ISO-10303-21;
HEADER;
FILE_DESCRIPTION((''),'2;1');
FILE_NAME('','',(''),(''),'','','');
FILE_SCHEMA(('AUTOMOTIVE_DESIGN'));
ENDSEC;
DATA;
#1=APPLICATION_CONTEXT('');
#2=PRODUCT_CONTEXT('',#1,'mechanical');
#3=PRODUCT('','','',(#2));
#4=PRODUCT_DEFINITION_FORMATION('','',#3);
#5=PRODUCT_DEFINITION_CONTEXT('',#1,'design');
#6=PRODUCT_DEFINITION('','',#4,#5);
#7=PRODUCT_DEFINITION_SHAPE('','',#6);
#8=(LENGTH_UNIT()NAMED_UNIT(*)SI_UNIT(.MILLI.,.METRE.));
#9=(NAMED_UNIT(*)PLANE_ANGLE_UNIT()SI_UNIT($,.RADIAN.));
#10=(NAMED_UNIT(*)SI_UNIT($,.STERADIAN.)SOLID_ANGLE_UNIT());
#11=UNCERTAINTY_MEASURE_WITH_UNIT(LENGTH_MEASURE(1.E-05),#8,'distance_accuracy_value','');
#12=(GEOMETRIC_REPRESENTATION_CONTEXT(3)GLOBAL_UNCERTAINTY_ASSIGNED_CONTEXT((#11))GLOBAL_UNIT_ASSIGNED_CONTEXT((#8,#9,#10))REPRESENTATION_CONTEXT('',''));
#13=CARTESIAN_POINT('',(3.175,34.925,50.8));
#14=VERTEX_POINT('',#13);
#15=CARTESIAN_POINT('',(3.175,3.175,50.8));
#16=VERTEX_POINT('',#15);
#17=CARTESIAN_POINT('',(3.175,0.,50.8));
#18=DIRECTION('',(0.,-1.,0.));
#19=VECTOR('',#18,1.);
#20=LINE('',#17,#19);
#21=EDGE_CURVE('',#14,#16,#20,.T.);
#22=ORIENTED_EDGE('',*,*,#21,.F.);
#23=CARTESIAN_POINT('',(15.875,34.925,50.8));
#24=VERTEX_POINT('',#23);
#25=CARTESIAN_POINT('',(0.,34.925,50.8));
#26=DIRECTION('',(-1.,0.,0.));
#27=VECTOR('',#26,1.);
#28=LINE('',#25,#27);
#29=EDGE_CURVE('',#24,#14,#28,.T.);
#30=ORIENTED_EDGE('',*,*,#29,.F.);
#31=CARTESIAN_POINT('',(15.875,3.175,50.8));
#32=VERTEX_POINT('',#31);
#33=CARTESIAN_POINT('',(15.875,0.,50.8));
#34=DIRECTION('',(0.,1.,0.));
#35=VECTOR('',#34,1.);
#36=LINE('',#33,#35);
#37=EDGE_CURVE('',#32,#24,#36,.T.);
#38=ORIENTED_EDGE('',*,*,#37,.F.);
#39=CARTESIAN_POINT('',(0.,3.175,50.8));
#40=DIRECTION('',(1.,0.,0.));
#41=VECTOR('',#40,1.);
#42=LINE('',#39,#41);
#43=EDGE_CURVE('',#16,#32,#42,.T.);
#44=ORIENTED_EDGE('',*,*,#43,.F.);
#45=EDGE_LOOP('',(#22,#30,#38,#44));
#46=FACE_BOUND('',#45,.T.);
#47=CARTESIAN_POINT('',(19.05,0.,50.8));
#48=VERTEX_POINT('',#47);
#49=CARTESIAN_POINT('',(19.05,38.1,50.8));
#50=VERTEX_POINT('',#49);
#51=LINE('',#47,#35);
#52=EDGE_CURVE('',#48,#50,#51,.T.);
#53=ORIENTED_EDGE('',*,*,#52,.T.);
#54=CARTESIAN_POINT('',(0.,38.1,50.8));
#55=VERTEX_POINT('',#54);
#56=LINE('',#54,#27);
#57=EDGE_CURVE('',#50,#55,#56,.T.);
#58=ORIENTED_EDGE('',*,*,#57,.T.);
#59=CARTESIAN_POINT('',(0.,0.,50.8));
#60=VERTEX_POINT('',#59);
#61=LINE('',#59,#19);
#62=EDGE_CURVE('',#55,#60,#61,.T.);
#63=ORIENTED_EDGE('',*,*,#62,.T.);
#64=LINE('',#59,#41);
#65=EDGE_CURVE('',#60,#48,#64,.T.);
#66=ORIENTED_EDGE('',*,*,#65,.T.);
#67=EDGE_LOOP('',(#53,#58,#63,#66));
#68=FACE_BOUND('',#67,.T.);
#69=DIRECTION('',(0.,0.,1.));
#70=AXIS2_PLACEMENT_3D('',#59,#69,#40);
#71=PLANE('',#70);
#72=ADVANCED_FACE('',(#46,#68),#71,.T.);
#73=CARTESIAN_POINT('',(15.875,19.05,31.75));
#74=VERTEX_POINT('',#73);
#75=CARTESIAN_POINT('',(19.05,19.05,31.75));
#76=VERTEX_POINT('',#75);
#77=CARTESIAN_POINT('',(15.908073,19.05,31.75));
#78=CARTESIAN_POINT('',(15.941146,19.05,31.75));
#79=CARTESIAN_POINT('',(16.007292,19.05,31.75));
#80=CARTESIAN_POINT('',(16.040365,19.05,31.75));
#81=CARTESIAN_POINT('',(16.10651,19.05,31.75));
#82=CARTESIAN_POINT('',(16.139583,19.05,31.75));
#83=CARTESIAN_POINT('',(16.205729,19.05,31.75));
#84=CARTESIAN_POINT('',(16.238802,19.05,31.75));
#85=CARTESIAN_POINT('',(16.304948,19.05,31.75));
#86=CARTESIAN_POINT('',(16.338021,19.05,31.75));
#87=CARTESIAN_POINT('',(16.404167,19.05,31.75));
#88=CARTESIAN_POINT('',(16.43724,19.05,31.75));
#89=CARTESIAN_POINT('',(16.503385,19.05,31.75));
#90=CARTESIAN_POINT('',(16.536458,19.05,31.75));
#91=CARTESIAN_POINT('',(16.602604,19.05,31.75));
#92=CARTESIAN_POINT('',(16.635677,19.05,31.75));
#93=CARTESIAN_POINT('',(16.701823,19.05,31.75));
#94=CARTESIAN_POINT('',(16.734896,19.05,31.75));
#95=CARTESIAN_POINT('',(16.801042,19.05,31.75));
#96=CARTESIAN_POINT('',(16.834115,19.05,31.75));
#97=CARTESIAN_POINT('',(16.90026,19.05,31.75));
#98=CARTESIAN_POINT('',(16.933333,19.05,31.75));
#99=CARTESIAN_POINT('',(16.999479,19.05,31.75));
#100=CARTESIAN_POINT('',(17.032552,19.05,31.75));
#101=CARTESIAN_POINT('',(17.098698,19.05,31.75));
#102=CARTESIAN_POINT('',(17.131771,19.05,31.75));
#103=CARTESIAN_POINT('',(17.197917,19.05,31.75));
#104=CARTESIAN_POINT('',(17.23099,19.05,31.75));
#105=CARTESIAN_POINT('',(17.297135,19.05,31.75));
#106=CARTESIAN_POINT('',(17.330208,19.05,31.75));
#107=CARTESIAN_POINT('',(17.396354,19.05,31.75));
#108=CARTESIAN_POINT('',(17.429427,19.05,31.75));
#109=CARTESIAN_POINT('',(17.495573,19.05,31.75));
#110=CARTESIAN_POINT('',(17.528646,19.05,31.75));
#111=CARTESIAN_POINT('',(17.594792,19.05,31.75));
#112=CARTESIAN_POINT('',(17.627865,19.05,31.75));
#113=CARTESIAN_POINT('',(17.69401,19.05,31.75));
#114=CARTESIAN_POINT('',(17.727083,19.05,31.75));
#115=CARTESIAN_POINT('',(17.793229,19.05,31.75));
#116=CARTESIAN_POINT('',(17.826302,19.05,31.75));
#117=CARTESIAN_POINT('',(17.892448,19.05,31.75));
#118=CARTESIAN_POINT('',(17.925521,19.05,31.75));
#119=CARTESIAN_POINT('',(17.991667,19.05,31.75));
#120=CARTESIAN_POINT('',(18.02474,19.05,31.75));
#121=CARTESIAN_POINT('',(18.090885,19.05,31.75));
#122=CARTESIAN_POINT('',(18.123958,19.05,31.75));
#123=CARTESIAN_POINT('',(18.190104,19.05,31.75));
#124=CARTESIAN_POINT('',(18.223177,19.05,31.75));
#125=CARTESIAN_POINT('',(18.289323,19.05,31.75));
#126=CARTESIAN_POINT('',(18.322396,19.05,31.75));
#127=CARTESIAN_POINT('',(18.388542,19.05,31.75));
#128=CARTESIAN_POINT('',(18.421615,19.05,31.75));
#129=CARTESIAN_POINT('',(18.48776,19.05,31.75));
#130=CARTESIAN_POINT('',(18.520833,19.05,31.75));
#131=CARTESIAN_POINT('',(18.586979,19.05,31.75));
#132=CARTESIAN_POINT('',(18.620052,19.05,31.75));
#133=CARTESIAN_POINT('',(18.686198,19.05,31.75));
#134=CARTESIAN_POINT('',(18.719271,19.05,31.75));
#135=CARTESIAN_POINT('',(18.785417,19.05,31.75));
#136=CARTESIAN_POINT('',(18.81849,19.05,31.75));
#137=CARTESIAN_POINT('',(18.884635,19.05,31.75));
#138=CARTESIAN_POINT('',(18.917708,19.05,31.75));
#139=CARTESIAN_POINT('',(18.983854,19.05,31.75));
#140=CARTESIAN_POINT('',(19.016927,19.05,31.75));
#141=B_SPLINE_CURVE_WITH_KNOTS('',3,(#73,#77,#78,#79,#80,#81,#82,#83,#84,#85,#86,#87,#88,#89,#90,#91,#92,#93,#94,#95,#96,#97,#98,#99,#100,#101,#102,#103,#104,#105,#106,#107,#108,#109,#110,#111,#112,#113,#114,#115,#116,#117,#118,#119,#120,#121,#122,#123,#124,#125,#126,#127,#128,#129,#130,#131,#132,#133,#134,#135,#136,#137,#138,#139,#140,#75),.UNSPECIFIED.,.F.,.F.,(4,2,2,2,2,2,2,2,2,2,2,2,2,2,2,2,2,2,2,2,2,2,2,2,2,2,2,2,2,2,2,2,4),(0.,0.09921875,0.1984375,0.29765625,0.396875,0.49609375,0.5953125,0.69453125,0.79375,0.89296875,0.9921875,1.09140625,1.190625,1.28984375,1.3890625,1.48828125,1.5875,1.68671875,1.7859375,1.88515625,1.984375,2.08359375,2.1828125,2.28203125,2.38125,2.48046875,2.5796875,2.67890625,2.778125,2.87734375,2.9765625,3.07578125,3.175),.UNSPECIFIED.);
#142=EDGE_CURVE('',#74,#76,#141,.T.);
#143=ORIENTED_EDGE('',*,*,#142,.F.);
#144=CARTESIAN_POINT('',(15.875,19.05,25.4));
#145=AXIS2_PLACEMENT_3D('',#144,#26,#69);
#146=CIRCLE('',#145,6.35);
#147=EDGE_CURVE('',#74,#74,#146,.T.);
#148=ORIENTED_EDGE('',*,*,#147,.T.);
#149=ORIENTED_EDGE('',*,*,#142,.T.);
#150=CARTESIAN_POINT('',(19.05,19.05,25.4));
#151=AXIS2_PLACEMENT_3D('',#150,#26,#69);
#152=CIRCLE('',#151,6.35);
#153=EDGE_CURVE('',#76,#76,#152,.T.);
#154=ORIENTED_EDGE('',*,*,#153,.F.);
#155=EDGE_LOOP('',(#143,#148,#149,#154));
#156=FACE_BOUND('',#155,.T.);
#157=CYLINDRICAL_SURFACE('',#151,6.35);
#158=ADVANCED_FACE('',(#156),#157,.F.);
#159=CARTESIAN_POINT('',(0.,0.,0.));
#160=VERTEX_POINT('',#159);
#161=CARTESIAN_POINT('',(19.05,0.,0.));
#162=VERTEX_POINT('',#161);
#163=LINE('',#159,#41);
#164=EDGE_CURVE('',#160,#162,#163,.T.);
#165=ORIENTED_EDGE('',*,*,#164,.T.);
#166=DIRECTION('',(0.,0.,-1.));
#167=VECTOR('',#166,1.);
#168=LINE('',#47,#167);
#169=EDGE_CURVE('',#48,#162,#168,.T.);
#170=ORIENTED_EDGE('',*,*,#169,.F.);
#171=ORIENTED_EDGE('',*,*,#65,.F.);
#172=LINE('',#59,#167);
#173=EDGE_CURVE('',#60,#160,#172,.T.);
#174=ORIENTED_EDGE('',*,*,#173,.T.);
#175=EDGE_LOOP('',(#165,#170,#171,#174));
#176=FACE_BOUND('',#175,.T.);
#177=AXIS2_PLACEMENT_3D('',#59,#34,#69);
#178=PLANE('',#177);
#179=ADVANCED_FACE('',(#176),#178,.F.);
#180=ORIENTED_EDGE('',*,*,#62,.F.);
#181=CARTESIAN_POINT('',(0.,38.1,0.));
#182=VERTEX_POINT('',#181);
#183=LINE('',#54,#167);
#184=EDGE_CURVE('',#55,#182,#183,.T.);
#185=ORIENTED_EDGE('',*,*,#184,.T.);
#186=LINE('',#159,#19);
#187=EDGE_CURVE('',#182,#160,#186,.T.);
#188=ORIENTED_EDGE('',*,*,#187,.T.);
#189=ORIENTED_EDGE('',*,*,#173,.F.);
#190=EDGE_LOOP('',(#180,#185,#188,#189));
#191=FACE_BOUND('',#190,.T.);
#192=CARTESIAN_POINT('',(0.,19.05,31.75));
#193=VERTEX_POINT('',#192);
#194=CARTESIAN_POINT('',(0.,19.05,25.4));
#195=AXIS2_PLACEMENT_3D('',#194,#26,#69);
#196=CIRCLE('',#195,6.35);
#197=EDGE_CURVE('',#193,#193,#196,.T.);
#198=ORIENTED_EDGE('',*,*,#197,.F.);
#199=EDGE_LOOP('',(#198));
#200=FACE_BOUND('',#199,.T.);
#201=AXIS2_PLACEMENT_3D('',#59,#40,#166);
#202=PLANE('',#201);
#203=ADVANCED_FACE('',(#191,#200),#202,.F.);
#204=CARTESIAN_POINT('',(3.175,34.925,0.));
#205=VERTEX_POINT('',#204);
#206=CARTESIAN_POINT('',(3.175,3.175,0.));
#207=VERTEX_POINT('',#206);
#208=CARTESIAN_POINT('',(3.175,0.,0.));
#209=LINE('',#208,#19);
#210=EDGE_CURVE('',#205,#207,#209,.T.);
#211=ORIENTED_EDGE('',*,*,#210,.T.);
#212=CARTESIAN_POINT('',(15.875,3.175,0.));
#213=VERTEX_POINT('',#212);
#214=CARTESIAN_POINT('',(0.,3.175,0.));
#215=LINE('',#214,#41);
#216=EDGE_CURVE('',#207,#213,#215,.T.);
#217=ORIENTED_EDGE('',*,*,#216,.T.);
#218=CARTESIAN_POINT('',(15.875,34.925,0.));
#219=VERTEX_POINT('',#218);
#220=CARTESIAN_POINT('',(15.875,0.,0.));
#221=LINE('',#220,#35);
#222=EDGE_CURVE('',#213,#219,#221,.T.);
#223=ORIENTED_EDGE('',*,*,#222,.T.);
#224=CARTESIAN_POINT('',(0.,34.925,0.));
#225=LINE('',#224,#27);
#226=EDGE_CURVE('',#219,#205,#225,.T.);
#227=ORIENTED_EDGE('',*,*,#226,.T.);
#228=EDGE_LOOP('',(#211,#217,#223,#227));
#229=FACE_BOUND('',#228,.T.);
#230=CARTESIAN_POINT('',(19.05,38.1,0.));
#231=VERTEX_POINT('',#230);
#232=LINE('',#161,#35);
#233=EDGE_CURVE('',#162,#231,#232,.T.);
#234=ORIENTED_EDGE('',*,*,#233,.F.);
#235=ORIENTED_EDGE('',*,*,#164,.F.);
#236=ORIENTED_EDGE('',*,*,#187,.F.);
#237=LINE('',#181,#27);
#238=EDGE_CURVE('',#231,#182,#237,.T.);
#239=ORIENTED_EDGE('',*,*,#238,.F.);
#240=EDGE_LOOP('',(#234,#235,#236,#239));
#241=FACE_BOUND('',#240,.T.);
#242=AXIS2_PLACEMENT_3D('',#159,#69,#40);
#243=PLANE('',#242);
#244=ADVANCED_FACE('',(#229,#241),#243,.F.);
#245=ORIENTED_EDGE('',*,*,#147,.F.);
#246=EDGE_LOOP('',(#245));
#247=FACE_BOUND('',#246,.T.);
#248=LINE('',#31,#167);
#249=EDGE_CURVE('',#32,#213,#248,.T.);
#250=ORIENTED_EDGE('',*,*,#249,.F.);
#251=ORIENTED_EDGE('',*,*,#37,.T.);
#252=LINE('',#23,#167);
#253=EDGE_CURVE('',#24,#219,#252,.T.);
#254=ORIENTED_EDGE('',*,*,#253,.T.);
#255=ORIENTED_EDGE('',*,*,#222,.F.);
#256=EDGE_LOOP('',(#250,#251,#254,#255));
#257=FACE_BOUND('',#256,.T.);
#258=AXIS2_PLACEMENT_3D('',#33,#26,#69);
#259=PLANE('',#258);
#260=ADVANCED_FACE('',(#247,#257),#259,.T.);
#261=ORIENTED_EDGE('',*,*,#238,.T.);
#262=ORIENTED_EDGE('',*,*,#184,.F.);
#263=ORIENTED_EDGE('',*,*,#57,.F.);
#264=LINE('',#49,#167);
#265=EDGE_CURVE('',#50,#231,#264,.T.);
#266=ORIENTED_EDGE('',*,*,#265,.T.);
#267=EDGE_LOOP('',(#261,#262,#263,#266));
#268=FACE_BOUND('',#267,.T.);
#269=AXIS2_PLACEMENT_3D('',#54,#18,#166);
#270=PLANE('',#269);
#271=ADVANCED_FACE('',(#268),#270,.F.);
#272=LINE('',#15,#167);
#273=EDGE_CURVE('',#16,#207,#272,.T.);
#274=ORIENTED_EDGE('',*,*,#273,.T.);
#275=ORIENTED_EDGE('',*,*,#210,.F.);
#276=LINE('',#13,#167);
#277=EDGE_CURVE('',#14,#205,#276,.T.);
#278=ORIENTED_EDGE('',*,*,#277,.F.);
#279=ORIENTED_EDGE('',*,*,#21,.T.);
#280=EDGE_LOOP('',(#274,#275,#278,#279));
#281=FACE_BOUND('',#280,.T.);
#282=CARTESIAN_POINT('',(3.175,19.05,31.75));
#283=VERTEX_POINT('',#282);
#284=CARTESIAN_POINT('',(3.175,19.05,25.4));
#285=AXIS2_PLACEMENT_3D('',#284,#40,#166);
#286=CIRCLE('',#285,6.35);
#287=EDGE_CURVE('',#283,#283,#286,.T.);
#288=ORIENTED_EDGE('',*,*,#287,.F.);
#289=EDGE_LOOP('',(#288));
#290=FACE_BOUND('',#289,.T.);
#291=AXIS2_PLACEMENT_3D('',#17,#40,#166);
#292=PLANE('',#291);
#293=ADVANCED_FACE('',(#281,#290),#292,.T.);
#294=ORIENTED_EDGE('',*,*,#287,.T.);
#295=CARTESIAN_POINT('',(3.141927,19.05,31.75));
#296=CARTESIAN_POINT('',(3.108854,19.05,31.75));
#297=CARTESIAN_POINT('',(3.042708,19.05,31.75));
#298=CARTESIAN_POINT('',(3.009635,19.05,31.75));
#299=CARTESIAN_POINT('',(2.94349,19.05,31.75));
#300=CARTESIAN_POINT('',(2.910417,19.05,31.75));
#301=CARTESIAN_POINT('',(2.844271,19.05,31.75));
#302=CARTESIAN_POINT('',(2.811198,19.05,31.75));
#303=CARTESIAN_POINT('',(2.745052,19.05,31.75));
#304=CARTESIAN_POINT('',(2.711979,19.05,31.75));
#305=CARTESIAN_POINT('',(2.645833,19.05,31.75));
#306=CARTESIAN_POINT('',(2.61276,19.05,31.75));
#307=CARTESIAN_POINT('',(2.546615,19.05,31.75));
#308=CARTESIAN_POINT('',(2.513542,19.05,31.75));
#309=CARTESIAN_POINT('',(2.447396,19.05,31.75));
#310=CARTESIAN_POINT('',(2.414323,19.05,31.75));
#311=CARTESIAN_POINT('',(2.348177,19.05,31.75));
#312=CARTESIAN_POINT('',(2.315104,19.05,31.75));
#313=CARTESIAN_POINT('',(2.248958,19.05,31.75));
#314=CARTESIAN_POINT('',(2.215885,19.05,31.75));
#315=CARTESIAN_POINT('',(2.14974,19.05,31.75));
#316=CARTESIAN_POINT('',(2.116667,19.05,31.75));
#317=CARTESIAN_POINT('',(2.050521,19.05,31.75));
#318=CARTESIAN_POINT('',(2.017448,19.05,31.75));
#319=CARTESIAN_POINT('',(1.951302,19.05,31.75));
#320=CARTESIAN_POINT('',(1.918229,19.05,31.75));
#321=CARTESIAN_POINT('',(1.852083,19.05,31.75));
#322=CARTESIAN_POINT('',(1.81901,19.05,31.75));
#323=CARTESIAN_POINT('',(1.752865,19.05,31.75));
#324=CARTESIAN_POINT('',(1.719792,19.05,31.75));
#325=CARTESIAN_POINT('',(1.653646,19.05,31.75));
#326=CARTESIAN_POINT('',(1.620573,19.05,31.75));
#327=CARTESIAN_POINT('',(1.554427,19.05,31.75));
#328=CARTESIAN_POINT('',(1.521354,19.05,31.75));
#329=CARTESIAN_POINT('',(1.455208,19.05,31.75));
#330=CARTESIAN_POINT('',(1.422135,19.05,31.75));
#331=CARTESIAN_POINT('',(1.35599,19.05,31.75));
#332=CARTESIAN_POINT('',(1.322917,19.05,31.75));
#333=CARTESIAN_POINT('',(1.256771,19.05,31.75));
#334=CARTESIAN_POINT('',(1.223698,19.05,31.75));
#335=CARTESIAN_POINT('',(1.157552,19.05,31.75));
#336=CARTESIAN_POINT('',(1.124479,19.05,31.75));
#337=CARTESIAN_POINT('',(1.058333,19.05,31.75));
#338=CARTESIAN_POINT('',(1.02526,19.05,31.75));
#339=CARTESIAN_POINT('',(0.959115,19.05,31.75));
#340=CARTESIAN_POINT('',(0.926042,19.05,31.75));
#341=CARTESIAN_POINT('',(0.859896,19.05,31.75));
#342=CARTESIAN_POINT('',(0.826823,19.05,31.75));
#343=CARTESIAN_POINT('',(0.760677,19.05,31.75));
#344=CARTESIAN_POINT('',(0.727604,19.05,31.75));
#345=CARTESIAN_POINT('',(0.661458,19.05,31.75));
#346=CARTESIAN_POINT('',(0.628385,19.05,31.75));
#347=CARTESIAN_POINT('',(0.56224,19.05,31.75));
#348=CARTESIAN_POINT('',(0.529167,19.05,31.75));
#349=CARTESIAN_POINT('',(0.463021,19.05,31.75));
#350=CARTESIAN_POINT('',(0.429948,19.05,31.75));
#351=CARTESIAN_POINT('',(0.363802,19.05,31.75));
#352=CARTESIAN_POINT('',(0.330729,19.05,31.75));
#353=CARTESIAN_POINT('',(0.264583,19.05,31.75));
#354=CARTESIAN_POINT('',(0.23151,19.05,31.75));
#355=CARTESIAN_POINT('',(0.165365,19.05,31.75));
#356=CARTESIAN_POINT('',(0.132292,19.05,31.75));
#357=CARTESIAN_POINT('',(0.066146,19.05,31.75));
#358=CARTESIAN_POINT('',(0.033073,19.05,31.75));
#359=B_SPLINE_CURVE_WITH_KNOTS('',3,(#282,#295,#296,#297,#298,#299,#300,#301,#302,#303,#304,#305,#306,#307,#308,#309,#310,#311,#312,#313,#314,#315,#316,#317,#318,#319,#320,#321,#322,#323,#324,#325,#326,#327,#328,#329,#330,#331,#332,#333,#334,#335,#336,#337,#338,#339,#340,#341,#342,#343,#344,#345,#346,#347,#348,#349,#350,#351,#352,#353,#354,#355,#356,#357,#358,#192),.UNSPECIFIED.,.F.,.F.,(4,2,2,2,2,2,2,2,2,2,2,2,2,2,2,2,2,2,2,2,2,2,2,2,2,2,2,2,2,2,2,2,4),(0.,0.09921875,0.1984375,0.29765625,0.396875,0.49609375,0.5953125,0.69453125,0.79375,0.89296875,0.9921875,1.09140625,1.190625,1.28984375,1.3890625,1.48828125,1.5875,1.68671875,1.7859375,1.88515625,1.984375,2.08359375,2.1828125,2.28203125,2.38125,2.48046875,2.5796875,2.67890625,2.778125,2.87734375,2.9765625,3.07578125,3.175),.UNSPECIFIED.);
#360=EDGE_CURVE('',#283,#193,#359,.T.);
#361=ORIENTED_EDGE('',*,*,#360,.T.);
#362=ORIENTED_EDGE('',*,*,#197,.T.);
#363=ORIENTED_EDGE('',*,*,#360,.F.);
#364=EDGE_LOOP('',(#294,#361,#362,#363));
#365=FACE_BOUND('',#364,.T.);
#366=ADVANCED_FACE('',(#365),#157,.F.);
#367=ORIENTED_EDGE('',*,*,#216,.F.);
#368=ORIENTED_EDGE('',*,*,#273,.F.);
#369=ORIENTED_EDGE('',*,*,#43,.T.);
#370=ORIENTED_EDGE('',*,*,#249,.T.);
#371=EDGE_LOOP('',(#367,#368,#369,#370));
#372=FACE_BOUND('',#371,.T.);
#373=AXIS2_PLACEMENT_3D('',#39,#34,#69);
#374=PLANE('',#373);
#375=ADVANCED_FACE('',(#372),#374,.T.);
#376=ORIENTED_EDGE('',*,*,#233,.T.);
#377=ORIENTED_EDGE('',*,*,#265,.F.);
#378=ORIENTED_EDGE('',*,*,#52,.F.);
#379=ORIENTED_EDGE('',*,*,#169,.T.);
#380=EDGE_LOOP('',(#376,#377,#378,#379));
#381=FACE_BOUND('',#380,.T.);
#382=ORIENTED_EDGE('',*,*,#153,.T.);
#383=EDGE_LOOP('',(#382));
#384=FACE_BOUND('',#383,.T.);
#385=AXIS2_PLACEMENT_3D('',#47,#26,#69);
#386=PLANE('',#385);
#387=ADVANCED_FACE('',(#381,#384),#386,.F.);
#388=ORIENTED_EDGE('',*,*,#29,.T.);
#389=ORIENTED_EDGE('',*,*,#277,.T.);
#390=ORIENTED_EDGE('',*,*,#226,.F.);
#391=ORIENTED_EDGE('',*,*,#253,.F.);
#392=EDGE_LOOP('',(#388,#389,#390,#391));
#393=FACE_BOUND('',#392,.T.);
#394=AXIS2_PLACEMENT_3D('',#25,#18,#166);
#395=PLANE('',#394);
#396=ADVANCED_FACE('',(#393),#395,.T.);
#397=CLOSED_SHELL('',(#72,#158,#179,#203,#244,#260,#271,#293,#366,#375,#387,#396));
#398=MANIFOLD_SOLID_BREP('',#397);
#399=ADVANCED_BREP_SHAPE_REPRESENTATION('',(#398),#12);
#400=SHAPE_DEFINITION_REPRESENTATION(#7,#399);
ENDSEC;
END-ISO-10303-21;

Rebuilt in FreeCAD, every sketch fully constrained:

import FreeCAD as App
import Part
import Sketcher
Q = App.Units.Quantity


def add_polygon(sketch, points):
    """Adds a closed chain of lines whose ends are joined by coincident constraints."""
    first, n = sketch.GeometryCount, len(points)
    for a, b in zip(points, points[1:] + points[:1]):
        sketch.addGeometry(Part.LineSegment(App.Vector(*a, 0), App.Vector(*b, 0)), False)
    for i in range(n):
        sketch.addConstraint(Sketcher.Constraint("Coincident", first + i, 2, first + (i + 1) % n, 1))

doc = App.newDocument("Part")
body = doc.addObject("PartDesign::Body", "Body")

sketch1 = body.newObject("Sketcher::SketchObject", "Sketch")
sketch1.AttachmentSupport = (doc.getObject("XY_Plane"), [""])
sketch1.MapMode = "FlatFace"
add_polygon(sketch1, [(0, 38.1), (0, 0), (19.05, 0), (19.05, 38.1)])
add_polygon(sketch1, [(15.875, 3.175), (3.175, 3.175), (3.175, 34.925), (15.875, 34.925)])
sketch1.addConstraint(Sketcher.Constraint("Vertical", 0))
sketch1.addConstraint(Sketcher.Constraint("Horizontal", 1))
sketch1.addConstraint(Sketcher.Constraint("Vertical", 2))
sketch1.addConstraint(Sketcher.Constraint("Horizontal", 3))
sketch1.addConstraint(Sketcher.Constraint("Horizontal", 4))
sketch1.addConstraint(Sketcher.Constraint("Vertical", 5))
sketch1.addConstraint(Sketcher.Constraint("Horizontal", 6))
sketch1.addConstraint(Sketcher.Constraint("Vertical", 7))
sketch1.addConstraint(Sketcher.Constraint("Coincident", 0, 2, -1, 1))
sketch1.addConstraint(Sketcher.Constraint("DistanceX", 4, 2, 4, 1, Q("0.5 in")))
sketch1.addConstraint(Sketcher.Constraint("DistanceY", 0, 2, 0, 1, Q("1.5 in")))
sketch1.addConstraint(Sketcher.Constraint("DistanceX", 1, 1, 1, 2, Q("0.75 in")))
sketch1.addConstraint(Sketcher.Constraint("DistanceY", 5, 1, 5, 2, Q("1.25 in")))
sketch1.addConstraint(Sketcher.Constraint("DistanceX", -1, 1, 4, 2, Q("0.125 in")))
sketch1.addConstraint(Sketcher.Constraint("DistanceY", -1, 1, 4, 2, Q("0.125 in")))
pad1 = body.newObject("PartDesign::Pad", "Pad")
pad1.Profile = sketch1
pad1.Length = Q("2 in")

sketch2 = body.newObject("Sketcher::SketchObject", "Sketch001")
sketch2.AttachmentSupport = (doc.getObject("YZ_Plane"), [""])
sketch2.MapMode = "FlatFace"
sketch2.addGeometry(Part.Circle(App.Vector(19.05, 25.4, 0), App.Vector(0, 0, 1), 6.35), False)
sketch2.addConstraint(Sketcher.Constraint("Diameter", 0, Q("0.5 in")))
sketch2.addConstraint(Sketcher.Constraint("DistanceY", -1, 1, 0, 3, Q("1 in")))
sketch2.addConstraint(Sketcher.Constraint("DistanceX", -1, 1, 0, 3, Q("0.75 in")))
pocket1 = body.newObject("PartDesign::Pocket", "Pocket")
pocket1.Profile = sketch2
pocket1.Type = "ThroughAll"
pocket1.Reversed = True

doc.recompute()
